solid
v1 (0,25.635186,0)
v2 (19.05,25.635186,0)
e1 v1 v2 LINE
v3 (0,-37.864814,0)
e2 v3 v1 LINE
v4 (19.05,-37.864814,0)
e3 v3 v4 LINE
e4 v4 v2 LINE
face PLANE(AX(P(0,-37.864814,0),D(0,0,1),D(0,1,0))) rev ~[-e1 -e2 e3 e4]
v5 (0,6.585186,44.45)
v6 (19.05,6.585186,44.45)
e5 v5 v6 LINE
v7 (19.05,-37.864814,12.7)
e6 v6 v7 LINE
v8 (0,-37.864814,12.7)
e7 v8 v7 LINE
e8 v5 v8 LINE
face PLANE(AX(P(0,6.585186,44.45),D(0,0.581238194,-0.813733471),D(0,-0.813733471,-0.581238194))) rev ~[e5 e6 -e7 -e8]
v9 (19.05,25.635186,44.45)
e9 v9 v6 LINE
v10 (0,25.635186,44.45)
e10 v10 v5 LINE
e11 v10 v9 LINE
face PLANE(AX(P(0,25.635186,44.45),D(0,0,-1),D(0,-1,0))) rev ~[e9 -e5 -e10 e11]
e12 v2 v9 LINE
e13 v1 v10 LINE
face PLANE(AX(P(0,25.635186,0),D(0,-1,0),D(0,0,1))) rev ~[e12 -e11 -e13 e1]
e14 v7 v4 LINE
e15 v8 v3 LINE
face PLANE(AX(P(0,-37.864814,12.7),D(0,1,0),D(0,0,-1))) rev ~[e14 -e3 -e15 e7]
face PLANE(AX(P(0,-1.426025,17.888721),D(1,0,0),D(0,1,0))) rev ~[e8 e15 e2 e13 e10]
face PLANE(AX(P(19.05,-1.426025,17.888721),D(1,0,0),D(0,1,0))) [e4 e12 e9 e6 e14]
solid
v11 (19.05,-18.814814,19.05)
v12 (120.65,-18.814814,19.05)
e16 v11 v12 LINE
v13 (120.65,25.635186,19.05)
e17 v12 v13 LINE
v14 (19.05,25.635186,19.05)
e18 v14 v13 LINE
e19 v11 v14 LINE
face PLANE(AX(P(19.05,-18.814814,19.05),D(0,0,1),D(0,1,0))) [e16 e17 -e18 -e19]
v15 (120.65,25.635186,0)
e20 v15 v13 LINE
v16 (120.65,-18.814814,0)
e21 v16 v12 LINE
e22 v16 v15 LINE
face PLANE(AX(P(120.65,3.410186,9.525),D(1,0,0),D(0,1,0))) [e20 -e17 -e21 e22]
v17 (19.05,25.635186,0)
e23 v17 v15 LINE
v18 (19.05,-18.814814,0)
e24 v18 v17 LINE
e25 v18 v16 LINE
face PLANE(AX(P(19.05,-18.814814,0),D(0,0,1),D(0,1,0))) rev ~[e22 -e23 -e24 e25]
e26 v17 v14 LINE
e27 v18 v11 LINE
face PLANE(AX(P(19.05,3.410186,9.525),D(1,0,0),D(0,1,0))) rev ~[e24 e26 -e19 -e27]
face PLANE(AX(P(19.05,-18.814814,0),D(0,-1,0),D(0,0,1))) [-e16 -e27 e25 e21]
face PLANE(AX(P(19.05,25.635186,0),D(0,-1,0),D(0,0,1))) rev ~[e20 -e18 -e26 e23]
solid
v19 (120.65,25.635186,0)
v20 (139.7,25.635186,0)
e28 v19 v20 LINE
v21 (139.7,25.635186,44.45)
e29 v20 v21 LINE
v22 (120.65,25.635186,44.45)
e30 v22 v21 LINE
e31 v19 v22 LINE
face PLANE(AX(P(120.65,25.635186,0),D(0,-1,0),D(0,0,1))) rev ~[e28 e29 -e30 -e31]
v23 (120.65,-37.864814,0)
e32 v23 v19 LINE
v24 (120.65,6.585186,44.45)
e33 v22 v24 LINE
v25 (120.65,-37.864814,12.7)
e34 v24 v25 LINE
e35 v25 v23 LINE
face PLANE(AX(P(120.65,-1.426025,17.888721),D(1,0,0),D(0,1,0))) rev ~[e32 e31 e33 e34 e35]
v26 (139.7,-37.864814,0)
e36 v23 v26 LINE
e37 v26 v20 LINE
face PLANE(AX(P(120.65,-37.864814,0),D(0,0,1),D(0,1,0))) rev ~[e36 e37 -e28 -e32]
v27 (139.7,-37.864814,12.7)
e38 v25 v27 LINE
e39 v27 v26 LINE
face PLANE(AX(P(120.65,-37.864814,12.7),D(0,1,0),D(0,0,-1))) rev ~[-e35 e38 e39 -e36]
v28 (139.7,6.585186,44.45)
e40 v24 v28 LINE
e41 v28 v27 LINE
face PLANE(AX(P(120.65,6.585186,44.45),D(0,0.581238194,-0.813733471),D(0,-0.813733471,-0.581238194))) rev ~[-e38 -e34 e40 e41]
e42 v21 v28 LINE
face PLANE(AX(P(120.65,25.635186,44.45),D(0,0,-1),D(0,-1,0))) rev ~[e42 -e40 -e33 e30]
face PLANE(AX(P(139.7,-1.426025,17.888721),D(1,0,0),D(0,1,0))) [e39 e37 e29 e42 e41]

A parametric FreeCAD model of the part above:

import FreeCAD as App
import Part
import Sketcher
Q = App.Units.Quantity

doc = App.newDocument("Part")
body = doc.addObject("PartDesign::Body", "Body")

sketch1 = body.newObject("Sketcher::SketchObject", "Sketch")
sketch1.AttachmentSupport = (doc.getObject("YZ_Plane"), [""])
sketch1.MapMode = "FlatFace"
sketch1.addGeometry([
    Part.LineSegment(App.Vector(-37.864814, 0, 0), App.Vector(25.635186, 0, 0)),
    Part.LineSegment(App.Vector(25.635186, 0, 0), App.Vector(25.635186, 44.45, 0)),
    Part.LineSegment(App.Vector(25.635186, 44.45, 0), App.Vector(6.585186, 44.45, 0)),
    Part.LineSegment(App.Vector(6.585186, 44.45, 0), App.Vector(-37.864814, 12.7, 0)),
    Part.LineSegment(App.Vector(-37.864814, 12.7, 0), App.Vector(-37.864814, 0, 0)),
], False)
sketch1.addConstraint([
    Sketcher.Constraint("Coincident", 0, 2, 1, 1),
    Sketcher.Constraint("Coincident", 1, 2, 2, 1),
    Sketcher.Constraint("Coincident", 2, 2, 3, 1),
    Sketcher.Constraint("Coincident", 3, 2, 4, 1),
    Sketcher.Constraint("Coincident", 4, 2, 0, 1),
    Sketcher.Constraint("Horizontal", 0),
    Sketcher.Constraint("Vertical", 1),
    Sketcher.Constraint("Horizontal", 2),
    Sketcher.Constraint("Vertical", 4),
    Sketcher.Constraint("PointOnObject", 0, 2, -1),
    Sketcher.Constraint("DistanceX", 0, 1, 0, 2, Q("2.5 in")),
    Sketcher.Constraint("DistanceY", 4, 2, 4, 1, Q("0.5 in")),
    Sketcher.Constraint("DistanceX", 2, 2, 2, 1, Q("0.75 in")),
    Sketcher.Constraint("DistanceY", 1, 1, 1, 2, Q("1.75 in")),
    Sketcher.Constraint("DistanceX", -1, 1, 0, 2, Q("25.635186 mm")),
])
pad1 = body.newObject("PartDesign::Pad", "Pad")
pad1.Profile = sketch1
pad1.Length = Q("0.75 in")
body2 = doc.addObject("PartDesign::Body", "Body001")

sketch2 = body2.newObject("Sketcher::SketchObject", "Sketch001")
sketch2.AttachmentSupport = (doc.getObject("YZ_Plane001"), [""])
sketch2.MapMode = "FlatFace"
sketch2.AttachmentOffset = App.Placement(App.Vector(0, 0, 0.75 * 25.4), App.Rotation())
sketch2.addGeometry([
    Part.LineSegment(App.Vector(-18.814814, 19.05, 0), App.Vector(-18.814814, 0, 0)),
    Part.LineSegment(App.Vector(-18.814814, 0, 0), App.Vector(25.635186, 0, 0)),
    Part.LineSegment(App.Vector(25.635186, 0, 0), App.Vector(25.635186, 19.05, 0)),
    Part.LineSegment(App.Vector(25.635186, 19.05, 0), App.Vector(-18.814814, 19.05, 0)),
], False)
sketch2.addConstraint([
    Sketcher.Constraint("Coincident", 0, 2, 1, 1),
    Sketcher.Constraint("Coincident", 1, 2, 2, 1),
    Sketcher.Constraint("Coincident", 2, 2, 3, 1),
    Sketcher.Constraint("Coincident", 3, 2, 0, 1),
    Sketcher.Constraint("Vertical", 0),
    Sketcher.Constraint("Horizontal", 1),
    Sketcher.Constraint("Vertical", 2),
    Sketcher.Constraint("Horizontal", 3),
    Sketcher.Constraint("PointOnObject", 0, 2, -1),
    Sketcher.Constraint("DistanceX", 1, 1, 1, 2, Q("1.75 in")),
    Sketcher.Constraint("DistanceY", 0, 2, 0, 1, Q("0.75 in")),
    Sketcher.Constraint("DistanceX", 0, 2, -1, 1, Q("18.814814 mm")),
])
pad2 = body2.newObject("PartDesign::Pad", "Pad001")
pad2.Profile = sketch2
pad2.Length = Q("4 in")
body3 = doc.addObject("PartDesign::Body", "Body002")

sketch3 = body3.newObject("Sketcher::SketchObject", "Sketch002")
sketch3.AttachmentSupport = (doc.getObject("YZ_Plane002"), [""])
sketch3.MapMode = "FlatFace"
sketch3.AttachmentOffset = App.Placement(App.Vector(0, 0, 4.75 * 25.4), App.Rotation())
sketch3.addGeometry([
    Part.LineSegment(App.Vector(-37.864814, 0, 0), App.Vector(25.635186, 0, 0)),
    Part.LineSegment(App.Vector(25.635186, 0, 0), App.Vector(25.635186, 44.45, 0)),
    Part.LineSegment(App.Vector(25.635186, 44.45, 0), App.Vector(6.585186, 44.45, 0)),
    Part.LineSegment(App.Vector(6.585186, 44.45, 0), App.Vector(-37.864814, 12.7, 0)),
    Part.LineSegment(App.Vector(-37.864814, 12.7, 0), App.Vector(-37.864814, 0, 0)),
], False)
sketch3.addConstraint([
    Sketcher.Constraint("Coincident", 0, 2, 1, 1),
    Sketcher.Constraint("Coincident", 1, 2, 2, 1),
    Sketcher.Constraint("Coincident", 2, 2, 3, 1),
    Sketcher.Constraint("Coincident", 3, 2, 4, 1),
    Sketcher.Constraint("Coincident", 4, 2, 0, 1),
    Sketcher.Constraint("Horizontal", 0),
    Sketcher.Constraint("Vertical", 1),
    Sketcher.Constraint("Horizontal", 2),
    Sketcher.Constraint("Vertical", 4),
    Sketcher.Constraint("PointOnObject", 0, 2, -1),
    Sketcher.Constraint("DistanceX", 0, 1, 0, 2, Q("2.5 in")),
    Sketcher.Constraint("DistanceY", 4, 2, 4, 1, Q("0.5 in")),
    Sketcher.Constraint("DistanceX", 2, 2, 2, 1, Q("0.75 in")),
    Sketcher.Constraint("DistanceY", 1, 1, 1, 2, Q("1.75 in")),
    Sketcher.Constraint("DistanceX", -1, 1, 0, 2, Q("25.635186 mm")),
])
pad3 = body3.newObject("PartDesign::Pad", "Pad002")
pad3.Profile = sketch3
pad3.Length = Q("0.75 in")

doc.recompute()
